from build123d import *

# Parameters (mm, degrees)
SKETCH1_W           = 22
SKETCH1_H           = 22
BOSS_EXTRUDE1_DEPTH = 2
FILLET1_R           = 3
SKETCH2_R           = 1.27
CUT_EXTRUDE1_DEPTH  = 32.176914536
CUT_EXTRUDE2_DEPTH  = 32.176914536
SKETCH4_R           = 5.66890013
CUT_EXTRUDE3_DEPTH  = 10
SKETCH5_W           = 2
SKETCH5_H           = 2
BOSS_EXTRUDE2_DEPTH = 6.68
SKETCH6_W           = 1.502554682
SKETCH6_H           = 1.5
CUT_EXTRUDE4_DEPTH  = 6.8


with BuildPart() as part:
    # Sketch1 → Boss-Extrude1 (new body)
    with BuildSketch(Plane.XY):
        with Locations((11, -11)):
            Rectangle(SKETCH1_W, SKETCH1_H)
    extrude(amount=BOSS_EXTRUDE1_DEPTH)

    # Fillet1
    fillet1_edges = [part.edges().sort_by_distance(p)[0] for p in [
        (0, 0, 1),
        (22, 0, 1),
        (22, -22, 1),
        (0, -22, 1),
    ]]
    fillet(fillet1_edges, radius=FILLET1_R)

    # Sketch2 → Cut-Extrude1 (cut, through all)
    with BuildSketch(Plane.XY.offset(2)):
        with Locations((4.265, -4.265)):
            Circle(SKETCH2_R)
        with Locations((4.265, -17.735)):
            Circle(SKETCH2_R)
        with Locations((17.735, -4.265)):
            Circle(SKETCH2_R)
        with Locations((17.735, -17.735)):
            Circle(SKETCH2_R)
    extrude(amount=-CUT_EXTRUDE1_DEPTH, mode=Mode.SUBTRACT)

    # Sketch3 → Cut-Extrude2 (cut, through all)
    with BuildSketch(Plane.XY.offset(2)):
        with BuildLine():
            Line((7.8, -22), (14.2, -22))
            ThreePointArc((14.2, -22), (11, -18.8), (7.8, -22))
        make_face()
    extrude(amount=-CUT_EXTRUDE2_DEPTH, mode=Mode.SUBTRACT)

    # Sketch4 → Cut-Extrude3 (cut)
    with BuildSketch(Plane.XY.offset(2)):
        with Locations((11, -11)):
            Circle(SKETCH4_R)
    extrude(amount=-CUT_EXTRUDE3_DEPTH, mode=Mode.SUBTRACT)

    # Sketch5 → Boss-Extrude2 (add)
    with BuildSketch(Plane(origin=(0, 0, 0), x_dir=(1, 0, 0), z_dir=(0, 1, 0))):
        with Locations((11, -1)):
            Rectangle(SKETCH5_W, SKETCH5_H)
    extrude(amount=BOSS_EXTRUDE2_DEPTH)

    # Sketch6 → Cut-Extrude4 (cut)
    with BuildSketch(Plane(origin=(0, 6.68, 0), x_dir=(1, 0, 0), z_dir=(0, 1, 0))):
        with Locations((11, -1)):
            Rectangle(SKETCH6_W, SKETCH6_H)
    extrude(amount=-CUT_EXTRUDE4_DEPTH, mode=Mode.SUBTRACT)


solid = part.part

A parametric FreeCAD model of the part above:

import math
import FreeCAD as App
import Part
import Sketcher


def edges_at(feature, points):
    """Names of the edges that pass closest to the given points."""
    edges = feature.Shape.Edges
    near = lambda p: min(range(len(edges)), key=lambda i: edges[i].distToShape(Part.Vertex(*p))[0])
    return sorted({f"Edge{near(p) + 1}" for p in points})

doc = App.newDocument("Part")
body = doc.addObject("PartDesign::Body", "Body")

# Sketch on XY plane
sketch1 = body.newObject("Sketcher::SketchObject", "Sketch")
sketch1.AttachmentSupport = (doc.getObject("XY_Plane"), [""])
sketch1.MapMode = "FlatFace"
sketch1.addGeometry(Part.LineSegment(App.Vector(0, 0, 0), App.Vector(0, -22, 0)), False)
sketch1.addGeometry(Part.LineSegment(App.Vector(0, -22, 0), App.Vector(22, -22, 0)), False)
sketch1.addGeometry(Part.LineSegment(App.Vector(22, -22, 0), App.Vector(22, 0, 0)), False)
sketch1.addGeometry(Part.LineSegment(App.Vector(22, 0, 0), App.Vector(0, 0, 0)), False)
sketch1.addConstraint(Sketcher.Constraint("Coincident", 0, 2, 1, 1))
sketch1.addConstraint(Sketcher.Constraint("Coincident", 1, 2, 2, 1))
sketch1.addConstraint(Sketcher.Constraint("Coincident", 2, 2, 3, 1))
sketch1.addConstraint(Sketcher.Constraint("Coincident", 3, 2, 0, 1))
sketch1.addConstraint(Sketcher.Constraint("Vertical", 0))
sketch1.addConstraint(Sketcher.Constraint("Horizontal", 1))
sketch1.addConstraint(Sketcher.Constraint("Vertical", 2))
sketch1.addConstraint(Sketcher.Constraint("Horizontal", 3))
sketch1.addConstraint(Sketcher.Constraint("Coincident", 3, 2, -1, 1))
sketch1.addConstraint(Sketcher.Constraint("Equal", 3, 0))
sketch1.addConstraint(Sketcher.Constraint("DistanceX", 1, 1, 1, 2, 22.0))
pad1 = body.newObject("PartDesign::Pad", "Pad")
pad1.Profile = sketch1
pad1.Length = 2
doc.recompute()

fillet = body.newObject("PartDesign::Fillet", "Fillet")
fillet.Base = (pad1, edges_at(pad1, [
    (0, 0, 1),
    (22, 0, 1),
    (22, -22, 1),
    (0, -22, 1),
]))
fillet.Radius = 3

# Sketch on XY plane
sketch2 = body.newObject("Sketcher::SketchObject", "Sketch001")
sketch2.AttachmentSupport = (doc.getObject("XY_Plane"), [""])
sketch2.MapMode = "FlatFace"
sketch2.AttachmentOffset = App.Placement(App.Vector(0, 0, 2), App.Rotation())
sketch2.addGeometry(Part.Circle(App.Vector(4.3, -4.3, 0), App.Vector(0, 0, 1), 1.3), False)
sketch2.addGeometry(Part.Circle(App.Vector(4.3, -17.7, 0), App.Vector(0, 0, 1), 1.3), False)
sketch2.addGeometry(Part.Circle(App.Vector(17.7, -4.3, 0), App.Vector(0, 0, 1), 1.3), False)
sketch2.addGeometry(Part.Circle(App.Vector(17.7, -17.7, 0), App.Vector(0, 0, 1), 1.3), False)
sketch2.addConstraint(Sketcher.Constraint("Equal", 0, 1))
sketch2.addConstraint(Sketcher.Constraint("Equal", 1, 2))
sketch2.addConstraint(Sketcher.Constraint("Equal", 2, 3))
sketch2.addConstraint(Sketcher.Constraint("Horizontal", 0, 3, 2, 3))
sketch2.addConstraint(Sketcher.Constraint("Horizontal", 1, 3, 3, 3))
sketch2.addConstraint(Sketcher.Constraint("Vertical", 0, 3, 1, 3))
sketch2.addConstraint(Sketcher.Constraint("Vertical", 2, 3, 3, 3))
sketch2.addConstraint(Sketcher.Constraint("Diameter", 0, 2.54))
sketch2.addConstraint(Sketcher.Constraint("DistanceY", 1, 3, 0, 3, 13.47))
sketch2.addConstraint(Sketcher.Constraint("DistanceX", 0, 3, 2, 3, 13.47))
sketch2.addConstraint(Sketcher.Constraint("DistanceX", -1, 1, 0, 3, 4.265))
sketch2.addConstraint(Sketcher.Constraint("DistanceY", 0, 3, -1, 1, 4.265))
pocket1 = body.newObject("PartDesign::Pocket", "Pocket")
pocket1.Profile = sketch2
pocket1.Type = "ThroughAll"

# Sketch on XY plane
sketch3 = body.newObject("Sketcher::SketchObject", "Sketch002")
sketch3.AttachmentSupport = (doc.getObject("XY_Plane"), [""])
sketch3.MapMode = "FlatFace"
sketch3.AttachmentOffset = App.Placement(App.Vector(0, 0, 2), App.Rotation())
sketch3.addGeometry(Part.LineSegment(App.Vector(7.8, -22, 0), App.Vector(14.2, -22, 0)), False)
sketch3.addGeometry(Part.ArcOfCircle(Part.Circle(App.Vector(11, -22, 0), App.Vector(0, 0, 1), 3.2), math.radians(0), math.radians(180)), False)
sketch3.addConstraint(Sketcher.Constraint("Coincident", 0, 1, 1, 2))
sketch3.addConstraint(Sketcher.Constraint("Coincident", 1, 1, 0, 2))
sketch3.addConstraint(Sketcher.Constraint("Horizontal", 0))
sketch3.addConstraint(Sketcher.Constraint("Horizontal", 1, 3, 0, 1))
sketch3.addConstraint(Sketcher.Constraint("Radius", 1, 3.2))
sketch3.addConstraint(Sketcher.Constraint("DistanceX", -1, 1, 1, 3, 11.0))
sketch3.addConstraint(Sketcher.Constraint("DistanceY", 1, 3, -1, 1, 22.0))
pocket2 = body.newObject("PartDesign::Pocket", "Pocket001")
pocket2.Profile = sketch3
pocket2.Type = "ThroughAll"

# Sketch on XY plane
sketch4 = body.newObject("Sketcher::SketchObject", "Sketch003")
sketch4.AttachmentSupport = (doc.getObject("XY_Plane"), [""])
sketch4.MapMode = "FlatFace"
sketch4.AttachmentOffset = App.Placement(App.Vector(0, 0, 2), App.Rotation())
sketch4.addGeometry(Part.Circle(App.Vector(11, -11, 0), App.Vector(0, 0, 1), 6), False)
sketch4.addConstraint(Sketcher.Constraint("DistanceX", -1, 1, 0, 3, 11.0))
sketch4.addConstraint(Sketcher.Constraint("DistanceY", 0, 3, -1, 1, 11.0))
sketch4.addConstraint(Sketcher.Constraint("Diameter", 0, 11.3378))
pocket3 = body.newObject("PartDesign::Pocket", "Pocket002")
pocket3.Profile = sketch4
pocket3.Length = 10

# Sketch on XZ plane
sketch5 = body.newObject("Sketcher::SketchObject", "Sketch004")
sketch5.AttachmentSupport = (doc.getObject("XZ_Plane"), [""])
sketch5.MapMode = "FlatFace"
sketch5.addGeometry(Part.LineSegment(App.Vector(10, 0, 0), App.Vector(10, 2, 0)), False)
sketch5.addGeometry(Part.LineSegment(App.Vector(10, 2, 0), App.Vector(12, 2, 0)), False)
sketch5.addGeometry(Part.LineSegment(App.Vector(12, 2, 0), App.Vector(12, 0, 0)), False)
sketch5.addGeometry(Part.LineSegment(App.Vector(12, 0, 0), App.Vector(10, 0, 0)), False)
sketch5.addConstraint(Sketcher.Constraint("Coincident", 0, 2, 1, 1))
sketch5.addConstraint(Sketcher.Constraint("Coincident", 1, 2, 2, 1))
sketch5.addConstraint(Sketcher.Constraint("Coincident", 2, 2, 3, 1))
sketch5.addConstraint(Sketcher.Constraint("Coincident", 3, 2, 0, 1))
sketch5.addConstraint(Sketcher.Constraint("Vertical", 0))
sketch5.addConstraint(Sketcher.Constraint("Horizontal", 1))
sketch5.addConstraint(Sketcher.Constraint("Vertical", 2))
sketch5.addConstraint(Sketcher.Constraint("Horizontal", 3))
sketch5.addConstraint(Sketcher.Constraint("PointOnObject", 2, 2, -1))
sketch5.addConstraint(Sketcher.Constraint("Equal", 3, 0))
sketch5.addConstraint(Sketcher.Constraint("DistanceX", 1, 1, 1, 2, 2.0))
sketch5.addConstraint(Sketcher.Constraint("DistanceX", -1, 1, 0, 2, 10.0))
pad2 = body.newObject("PartDesign::Pad", "Pad001")
pad2.Profile = sketch5
pad2.Length = 6.68
pad2.Reversed = True

# Sketch on XZ plane
sketch6 = body.newObject("Sketcher::SketchObject", "Sketch005")
sketch6.AttachmentSupport = (doc.getObject("XZ_Plane"), [""])
sketch6.MapMode = "FlatFace"
sketch6.AttachmentOffset = App.Placement(App.Vector(0, 0, -6.68), App.Rotation())
sketch6.addGeometry(Part.LineSegment(App.Vector(10.2, 0.2, 0), App.Vector(10.2, 1.8, 0)), False)
sketch6.addGeometry(Part.LineSegment(App.Vector(10.2, 1.8, 0), App.Vector(11.8, 1.8, 0)), False)
sketch6.addGeometry(Part.LineSegment(App.Vector(11.8, 1.8, 0), App.Vector(11.8, 0.2, 0)), False)
sketch6.addGeometry(Part.LineSegment(App.Vector(11.8, 0.2, 0), App.Vector(10.2, 0.2, 0)), False)
sketch6.addConstraint(Sketcher.Constraint("Coincident", 0, 2, 1, 1))
sketch6.addConstraint(Sketcher.Constraint("Coincident", 1, 2, 2, 1))
sketch6.addConstraint(Sketcher.Constraint("Coincident", 2, 2, 3, 1))
sketch6.addConstraint(Sketcher.Constraint("Coincident", 3, 2, 0, 1))
sketch6.addConstraint(Sketcher.Constraint("Vertical", 0))
sketch6.addConstraint(Sketcher.Constraint("Horizontal", 1))
sketch6.addConstraint(Sketcher.Constraint("Vertical", 2))
sketch6.addConstraint(Sketcher.Constraint("Horizontal", 3))
sketch6.addConstraint(Sketcher.Constraint("DistanceY", 0, 1, 0, 2, 1.5))
sketch6.addConstraint(Sketcher.Constraint("DistanceY", -1, 1, 0, 2, 1.75))
sketch6.addConstraint(Sketcher.Constraint("DistanceX", 1, 1, 1, 2, 1.502555))
sketch6.addConstraint(Sketcher.Constraint("DistanceX", -1, 1, 0, 2, 10.248723))
pocket4 = body.newObject("PartDesign::Pocket", "Pocket003")
pocket4.Profile = sketch6
pocket4.Length = 6.8
pocket4.Reversed = True

doc.recompute()
